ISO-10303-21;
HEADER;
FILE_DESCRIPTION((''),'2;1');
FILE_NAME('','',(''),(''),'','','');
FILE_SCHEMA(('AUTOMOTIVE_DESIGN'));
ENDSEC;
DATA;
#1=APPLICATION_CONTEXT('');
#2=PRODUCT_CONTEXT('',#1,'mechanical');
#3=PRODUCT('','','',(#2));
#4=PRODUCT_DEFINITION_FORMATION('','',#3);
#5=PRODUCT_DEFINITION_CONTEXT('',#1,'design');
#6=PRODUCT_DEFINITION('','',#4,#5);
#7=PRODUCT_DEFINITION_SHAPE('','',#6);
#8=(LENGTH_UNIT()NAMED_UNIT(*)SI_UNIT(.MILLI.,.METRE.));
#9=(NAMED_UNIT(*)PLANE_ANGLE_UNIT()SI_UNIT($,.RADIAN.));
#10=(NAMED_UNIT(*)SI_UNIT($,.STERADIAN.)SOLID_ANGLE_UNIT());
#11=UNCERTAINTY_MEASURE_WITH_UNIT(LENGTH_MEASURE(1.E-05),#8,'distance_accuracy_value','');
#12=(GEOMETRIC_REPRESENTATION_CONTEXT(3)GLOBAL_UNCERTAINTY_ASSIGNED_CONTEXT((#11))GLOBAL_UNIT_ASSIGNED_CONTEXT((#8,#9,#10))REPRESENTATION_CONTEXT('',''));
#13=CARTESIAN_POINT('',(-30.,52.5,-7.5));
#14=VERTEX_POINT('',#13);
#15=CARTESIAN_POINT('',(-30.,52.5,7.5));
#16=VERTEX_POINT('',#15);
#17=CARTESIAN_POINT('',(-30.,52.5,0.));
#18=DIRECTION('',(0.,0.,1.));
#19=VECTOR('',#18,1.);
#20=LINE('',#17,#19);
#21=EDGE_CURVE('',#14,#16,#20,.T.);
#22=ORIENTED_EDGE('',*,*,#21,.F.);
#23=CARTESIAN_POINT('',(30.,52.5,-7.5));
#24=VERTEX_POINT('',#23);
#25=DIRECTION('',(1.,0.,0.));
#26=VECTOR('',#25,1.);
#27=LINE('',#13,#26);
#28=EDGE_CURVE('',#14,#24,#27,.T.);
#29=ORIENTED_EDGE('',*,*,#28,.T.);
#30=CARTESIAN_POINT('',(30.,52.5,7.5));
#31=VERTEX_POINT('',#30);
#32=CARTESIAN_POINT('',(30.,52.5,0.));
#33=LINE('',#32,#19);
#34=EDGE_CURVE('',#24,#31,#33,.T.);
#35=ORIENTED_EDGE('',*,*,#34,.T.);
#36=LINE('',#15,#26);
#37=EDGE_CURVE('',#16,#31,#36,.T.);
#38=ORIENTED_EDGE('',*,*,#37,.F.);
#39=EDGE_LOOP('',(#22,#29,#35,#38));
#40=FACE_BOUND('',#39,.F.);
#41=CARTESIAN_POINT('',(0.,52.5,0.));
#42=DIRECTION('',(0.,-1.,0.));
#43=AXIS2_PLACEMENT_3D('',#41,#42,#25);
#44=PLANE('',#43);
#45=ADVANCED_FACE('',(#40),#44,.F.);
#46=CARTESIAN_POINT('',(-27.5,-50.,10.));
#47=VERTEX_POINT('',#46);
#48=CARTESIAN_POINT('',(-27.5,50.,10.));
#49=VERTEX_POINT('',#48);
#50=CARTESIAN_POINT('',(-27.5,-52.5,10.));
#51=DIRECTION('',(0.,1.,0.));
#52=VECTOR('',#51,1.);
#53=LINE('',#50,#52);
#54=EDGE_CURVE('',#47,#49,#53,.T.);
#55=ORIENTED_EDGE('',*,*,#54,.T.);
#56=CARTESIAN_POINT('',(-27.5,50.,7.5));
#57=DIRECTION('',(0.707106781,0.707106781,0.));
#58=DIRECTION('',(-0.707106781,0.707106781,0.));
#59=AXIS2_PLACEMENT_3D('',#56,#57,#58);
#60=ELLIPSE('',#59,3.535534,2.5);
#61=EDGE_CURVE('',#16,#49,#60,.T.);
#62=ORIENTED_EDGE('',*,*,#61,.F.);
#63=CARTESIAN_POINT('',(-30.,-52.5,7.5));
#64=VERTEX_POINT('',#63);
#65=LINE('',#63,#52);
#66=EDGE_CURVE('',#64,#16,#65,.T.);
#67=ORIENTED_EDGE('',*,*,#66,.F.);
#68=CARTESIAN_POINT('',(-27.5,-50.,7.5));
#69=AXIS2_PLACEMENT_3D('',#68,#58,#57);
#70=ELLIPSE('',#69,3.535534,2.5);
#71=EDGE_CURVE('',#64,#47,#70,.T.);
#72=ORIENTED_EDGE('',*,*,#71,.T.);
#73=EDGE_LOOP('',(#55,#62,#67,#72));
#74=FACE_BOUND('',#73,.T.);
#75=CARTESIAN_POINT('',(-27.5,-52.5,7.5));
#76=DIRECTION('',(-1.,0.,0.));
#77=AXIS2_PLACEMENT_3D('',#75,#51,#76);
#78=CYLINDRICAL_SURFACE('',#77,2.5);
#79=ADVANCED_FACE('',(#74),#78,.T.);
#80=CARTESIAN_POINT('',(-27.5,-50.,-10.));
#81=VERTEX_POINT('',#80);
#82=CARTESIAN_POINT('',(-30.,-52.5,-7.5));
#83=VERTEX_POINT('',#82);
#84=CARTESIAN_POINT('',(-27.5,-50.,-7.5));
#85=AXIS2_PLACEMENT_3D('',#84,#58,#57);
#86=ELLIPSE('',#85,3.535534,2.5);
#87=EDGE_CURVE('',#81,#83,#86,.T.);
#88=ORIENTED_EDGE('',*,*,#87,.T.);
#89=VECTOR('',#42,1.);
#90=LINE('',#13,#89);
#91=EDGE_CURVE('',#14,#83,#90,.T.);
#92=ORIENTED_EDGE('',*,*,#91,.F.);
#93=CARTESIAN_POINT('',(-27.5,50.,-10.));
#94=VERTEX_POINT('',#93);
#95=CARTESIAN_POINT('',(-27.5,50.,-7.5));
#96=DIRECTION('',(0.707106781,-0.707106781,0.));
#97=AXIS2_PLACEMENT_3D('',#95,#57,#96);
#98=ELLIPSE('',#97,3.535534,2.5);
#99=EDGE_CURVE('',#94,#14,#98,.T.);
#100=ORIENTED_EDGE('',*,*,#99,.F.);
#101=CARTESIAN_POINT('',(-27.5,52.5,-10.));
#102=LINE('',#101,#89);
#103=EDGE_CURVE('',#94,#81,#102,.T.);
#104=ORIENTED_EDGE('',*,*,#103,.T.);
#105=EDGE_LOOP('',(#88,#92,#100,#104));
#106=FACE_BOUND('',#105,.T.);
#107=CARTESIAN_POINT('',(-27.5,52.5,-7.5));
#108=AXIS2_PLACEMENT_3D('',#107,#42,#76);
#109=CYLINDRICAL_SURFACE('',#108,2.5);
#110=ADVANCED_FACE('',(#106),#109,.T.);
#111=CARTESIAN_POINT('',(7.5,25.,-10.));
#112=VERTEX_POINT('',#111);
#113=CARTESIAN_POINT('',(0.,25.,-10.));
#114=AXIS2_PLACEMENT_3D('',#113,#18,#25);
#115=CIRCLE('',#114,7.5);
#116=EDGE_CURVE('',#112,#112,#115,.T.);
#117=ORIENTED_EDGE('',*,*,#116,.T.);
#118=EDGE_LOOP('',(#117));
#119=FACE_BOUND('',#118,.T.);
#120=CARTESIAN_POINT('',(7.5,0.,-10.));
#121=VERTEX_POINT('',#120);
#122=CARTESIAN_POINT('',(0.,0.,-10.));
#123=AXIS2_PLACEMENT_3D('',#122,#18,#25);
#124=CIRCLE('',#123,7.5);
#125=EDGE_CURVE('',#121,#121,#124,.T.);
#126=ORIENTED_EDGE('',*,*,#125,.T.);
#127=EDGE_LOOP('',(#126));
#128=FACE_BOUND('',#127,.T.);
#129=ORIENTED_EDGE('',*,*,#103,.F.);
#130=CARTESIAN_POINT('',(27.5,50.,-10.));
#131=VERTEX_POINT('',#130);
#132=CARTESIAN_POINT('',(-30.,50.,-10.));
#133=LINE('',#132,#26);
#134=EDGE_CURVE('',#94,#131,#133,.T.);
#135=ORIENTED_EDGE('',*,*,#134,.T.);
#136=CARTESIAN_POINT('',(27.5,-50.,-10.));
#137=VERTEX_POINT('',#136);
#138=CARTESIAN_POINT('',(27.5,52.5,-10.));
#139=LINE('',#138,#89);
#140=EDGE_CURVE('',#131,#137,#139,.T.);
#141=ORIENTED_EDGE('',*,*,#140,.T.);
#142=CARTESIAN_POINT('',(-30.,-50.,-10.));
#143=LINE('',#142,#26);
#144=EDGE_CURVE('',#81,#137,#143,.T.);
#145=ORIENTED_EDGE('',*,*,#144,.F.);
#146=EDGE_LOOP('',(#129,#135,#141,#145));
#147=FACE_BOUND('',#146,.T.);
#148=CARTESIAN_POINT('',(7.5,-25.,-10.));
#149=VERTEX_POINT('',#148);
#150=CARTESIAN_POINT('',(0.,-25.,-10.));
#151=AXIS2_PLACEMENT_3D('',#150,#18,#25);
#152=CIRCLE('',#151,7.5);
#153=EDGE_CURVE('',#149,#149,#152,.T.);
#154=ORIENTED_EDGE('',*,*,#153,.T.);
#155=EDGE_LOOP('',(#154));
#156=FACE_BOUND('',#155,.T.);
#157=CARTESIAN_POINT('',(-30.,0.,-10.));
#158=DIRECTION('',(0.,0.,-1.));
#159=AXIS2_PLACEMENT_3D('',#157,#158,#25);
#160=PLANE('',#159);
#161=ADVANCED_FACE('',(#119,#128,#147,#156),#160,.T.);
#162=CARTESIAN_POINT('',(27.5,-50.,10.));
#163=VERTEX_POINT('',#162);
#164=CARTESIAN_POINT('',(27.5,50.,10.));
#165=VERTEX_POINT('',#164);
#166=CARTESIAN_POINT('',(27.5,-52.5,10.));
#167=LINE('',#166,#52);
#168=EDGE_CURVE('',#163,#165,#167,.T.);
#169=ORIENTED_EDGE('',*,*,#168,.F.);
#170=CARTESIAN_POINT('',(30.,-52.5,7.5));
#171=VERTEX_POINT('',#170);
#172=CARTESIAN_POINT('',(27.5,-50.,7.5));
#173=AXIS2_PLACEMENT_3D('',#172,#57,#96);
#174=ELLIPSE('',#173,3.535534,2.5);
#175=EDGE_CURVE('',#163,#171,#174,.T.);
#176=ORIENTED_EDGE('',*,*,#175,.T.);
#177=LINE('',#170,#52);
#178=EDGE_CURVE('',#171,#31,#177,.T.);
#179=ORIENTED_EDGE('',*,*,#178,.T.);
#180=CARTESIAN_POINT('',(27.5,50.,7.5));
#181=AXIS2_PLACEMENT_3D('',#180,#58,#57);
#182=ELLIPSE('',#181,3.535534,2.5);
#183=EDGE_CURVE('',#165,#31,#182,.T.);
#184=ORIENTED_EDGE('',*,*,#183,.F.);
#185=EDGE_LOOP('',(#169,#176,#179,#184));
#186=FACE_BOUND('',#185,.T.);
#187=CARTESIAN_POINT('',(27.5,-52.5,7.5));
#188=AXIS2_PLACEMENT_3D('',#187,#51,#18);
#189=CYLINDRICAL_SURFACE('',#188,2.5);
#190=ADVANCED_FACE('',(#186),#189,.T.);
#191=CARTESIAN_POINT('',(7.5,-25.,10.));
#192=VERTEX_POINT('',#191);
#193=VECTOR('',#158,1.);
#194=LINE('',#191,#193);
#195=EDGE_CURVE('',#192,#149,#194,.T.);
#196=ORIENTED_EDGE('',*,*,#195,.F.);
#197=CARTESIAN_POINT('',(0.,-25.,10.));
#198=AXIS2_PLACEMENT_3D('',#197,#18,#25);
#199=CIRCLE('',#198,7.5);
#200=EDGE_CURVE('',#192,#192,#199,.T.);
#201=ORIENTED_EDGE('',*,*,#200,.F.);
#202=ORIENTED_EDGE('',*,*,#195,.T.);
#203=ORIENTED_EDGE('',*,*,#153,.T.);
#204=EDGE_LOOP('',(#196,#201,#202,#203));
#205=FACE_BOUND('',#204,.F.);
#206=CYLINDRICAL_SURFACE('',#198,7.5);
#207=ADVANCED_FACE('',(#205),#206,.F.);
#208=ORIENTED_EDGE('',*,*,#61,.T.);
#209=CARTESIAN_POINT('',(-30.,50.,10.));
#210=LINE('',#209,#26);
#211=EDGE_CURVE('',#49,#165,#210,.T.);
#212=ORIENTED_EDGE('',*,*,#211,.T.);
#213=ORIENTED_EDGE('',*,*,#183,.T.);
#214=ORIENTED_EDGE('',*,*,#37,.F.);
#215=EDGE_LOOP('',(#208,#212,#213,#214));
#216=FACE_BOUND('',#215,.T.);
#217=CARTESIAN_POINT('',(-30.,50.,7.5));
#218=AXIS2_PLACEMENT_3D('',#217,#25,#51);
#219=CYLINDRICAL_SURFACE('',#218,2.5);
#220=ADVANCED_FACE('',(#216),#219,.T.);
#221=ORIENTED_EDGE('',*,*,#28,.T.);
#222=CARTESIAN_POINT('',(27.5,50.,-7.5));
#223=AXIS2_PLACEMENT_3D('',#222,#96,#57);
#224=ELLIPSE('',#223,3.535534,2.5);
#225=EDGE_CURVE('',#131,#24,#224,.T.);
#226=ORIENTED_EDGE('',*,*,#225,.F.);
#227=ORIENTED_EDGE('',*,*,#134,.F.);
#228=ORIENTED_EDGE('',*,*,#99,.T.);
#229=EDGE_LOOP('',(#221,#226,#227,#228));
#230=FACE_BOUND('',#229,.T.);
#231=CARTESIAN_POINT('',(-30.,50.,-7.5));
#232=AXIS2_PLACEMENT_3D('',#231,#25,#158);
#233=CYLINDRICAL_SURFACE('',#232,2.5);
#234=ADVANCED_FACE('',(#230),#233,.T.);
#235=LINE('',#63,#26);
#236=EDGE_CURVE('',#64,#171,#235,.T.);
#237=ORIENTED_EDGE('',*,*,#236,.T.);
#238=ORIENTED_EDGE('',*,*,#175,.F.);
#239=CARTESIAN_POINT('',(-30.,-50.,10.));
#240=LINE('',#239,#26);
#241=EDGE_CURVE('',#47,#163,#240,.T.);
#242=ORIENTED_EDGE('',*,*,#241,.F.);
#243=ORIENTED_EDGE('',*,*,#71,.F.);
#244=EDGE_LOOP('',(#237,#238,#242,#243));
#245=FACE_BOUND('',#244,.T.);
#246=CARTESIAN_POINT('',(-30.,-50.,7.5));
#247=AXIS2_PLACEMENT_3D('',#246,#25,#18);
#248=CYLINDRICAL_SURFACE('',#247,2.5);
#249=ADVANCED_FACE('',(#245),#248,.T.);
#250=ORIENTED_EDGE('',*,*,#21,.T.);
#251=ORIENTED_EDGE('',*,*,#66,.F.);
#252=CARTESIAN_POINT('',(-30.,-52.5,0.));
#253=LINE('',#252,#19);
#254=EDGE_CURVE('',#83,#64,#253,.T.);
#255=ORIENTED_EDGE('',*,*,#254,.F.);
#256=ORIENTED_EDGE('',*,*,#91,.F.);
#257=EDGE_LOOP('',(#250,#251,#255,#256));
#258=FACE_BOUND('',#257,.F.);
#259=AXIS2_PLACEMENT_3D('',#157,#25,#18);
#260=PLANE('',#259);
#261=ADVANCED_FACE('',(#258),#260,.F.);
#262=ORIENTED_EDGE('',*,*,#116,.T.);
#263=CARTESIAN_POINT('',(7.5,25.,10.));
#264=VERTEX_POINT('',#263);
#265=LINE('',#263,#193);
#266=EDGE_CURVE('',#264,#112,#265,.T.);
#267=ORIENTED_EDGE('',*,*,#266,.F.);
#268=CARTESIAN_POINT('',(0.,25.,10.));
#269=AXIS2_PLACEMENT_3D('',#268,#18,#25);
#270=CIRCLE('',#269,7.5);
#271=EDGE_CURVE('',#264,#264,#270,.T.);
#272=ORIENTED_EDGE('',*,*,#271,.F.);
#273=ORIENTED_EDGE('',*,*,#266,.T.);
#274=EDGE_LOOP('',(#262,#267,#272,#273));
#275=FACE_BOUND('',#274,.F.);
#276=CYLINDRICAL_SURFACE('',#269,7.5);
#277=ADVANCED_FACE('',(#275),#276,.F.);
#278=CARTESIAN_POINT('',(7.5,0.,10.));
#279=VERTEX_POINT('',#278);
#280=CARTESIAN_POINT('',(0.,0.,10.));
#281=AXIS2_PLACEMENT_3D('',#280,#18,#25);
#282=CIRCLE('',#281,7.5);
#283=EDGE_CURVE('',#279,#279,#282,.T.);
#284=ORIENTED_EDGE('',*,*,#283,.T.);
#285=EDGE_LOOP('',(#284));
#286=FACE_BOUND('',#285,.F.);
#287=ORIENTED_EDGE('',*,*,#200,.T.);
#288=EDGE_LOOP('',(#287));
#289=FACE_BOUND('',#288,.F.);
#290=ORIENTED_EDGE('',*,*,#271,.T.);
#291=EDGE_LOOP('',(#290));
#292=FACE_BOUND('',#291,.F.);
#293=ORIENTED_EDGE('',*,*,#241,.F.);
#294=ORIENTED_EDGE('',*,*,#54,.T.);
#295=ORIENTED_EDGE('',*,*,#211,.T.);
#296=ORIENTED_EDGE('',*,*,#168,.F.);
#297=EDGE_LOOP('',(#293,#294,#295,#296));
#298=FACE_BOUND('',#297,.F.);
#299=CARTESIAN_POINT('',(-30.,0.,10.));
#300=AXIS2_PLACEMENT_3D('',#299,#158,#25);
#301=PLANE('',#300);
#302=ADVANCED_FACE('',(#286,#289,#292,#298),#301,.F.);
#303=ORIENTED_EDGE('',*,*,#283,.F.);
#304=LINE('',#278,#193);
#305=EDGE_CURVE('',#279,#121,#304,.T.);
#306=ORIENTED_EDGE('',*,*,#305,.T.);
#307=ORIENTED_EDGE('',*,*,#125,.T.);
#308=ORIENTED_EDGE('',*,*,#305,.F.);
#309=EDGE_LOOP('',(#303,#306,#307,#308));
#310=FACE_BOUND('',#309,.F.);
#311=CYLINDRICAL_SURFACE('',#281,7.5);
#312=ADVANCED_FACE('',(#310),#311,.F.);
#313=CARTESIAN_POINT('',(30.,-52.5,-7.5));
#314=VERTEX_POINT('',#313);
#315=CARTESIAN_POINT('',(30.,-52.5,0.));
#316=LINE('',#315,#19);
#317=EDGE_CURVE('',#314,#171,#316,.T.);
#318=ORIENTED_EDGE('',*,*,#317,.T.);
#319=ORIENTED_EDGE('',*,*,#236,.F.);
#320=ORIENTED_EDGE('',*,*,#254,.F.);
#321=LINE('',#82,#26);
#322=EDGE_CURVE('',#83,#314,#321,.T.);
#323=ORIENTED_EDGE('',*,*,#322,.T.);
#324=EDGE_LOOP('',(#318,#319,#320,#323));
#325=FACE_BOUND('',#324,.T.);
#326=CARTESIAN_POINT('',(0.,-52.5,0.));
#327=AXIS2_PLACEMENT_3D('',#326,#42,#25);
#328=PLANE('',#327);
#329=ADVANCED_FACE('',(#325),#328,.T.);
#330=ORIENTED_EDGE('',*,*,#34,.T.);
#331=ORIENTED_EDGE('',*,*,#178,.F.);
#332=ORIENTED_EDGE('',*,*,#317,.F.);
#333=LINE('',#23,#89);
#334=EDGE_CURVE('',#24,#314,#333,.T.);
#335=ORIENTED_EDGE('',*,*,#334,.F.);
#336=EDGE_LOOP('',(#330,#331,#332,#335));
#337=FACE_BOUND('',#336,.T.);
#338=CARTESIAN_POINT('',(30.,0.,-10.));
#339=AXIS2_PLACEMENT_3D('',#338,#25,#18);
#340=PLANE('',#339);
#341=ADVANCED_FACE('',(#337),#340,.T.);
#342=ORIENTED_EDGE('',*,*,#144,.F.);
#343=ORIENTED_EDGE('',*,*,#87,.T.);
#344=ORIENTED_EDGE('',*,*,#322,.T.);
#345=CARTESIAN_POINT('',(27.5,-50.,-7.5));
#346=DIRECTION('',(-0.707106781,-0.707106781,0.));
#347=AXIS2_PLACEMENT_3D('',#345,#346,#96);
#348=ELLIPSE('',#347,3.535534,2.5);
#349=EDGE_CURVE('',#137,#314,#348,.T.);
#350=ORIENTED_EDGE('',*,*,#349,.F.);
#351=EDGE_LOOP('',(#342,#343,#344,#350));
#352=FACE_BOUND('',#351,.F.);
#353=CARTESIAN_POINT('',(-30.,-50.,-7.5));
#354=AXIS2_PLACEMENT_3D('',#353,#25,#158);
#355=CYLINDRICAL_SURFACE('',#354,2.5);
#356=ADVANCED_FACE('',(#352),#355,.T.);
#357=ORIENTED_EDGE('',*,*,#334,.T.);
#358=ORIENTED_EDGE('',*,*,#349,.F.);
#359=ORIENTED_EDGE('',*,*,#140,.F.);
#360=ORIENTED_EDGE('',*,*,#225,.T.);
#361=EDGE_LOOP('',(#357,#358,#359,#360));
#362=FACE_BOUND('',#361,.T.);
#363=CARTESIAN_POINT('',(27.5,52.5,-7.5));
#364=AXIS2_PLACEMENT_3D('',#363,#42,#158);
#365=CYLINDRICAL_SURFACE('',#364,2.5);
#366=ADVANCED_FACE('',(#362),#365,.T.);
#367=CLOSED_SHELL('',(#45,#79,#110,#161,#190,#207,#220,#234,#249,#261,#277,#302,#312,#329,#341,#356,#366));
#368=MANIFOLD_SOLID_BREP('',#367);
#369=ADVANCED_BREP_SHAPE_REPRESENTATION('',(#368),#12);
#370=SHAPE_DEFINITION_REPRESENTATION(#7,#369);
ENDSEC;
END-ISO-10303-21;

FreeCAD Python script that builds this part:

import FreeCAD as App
import Part
import Sketcher

V = App.Vector


def edges_at(feature, points):
    """Names of the edges that pass closest to the given points."""
    edges = feature.Shape.Edges
    near = lambda p: min(range(len(edges)), key=lambda i: edges[i].distToShape(Part.Vertex(*p))[0])
    return sorted({f"Edge{near(p) + 1}" for p in points})


def add_polygon(sketch, points):
    """Adds a closed chain of lines whose ends are joined by coincident constraints."""
    first, n = sketch.GeometryCount, len(points)
    for a, b in zip(points, points[1:] + points[:1]):
        sketch.addGeometry(Part.LineSegment(App.Vector(*a, 0), App.Vector(*b, 0)), False)
    for i in range(n):
        sketch.addConstraint(Sketcher.Constraint("Coincident", first + i, 2, first + (i + 1) % n, 1))

doc = App.newDocument("Part")
body = doc.addObject("PartDesign::Body", "Body")

sketch1 = body.newObject("Sketcher::SketchObject", "Sketch")
sketch1.AttachmentSupport = (doc.getObject("XZ_Plane"), [""])
sketch1.MapMode = "FlatFace"
add_polygon(sketch1, [(-30, 10), (-30, -10), (30, -10), (30, 10)])
sketch1.addConstraint([
    Sketcher.Constraint("Vertical", 0),
    Sketcher.Constraint("Horizontal", 1),
    Sketcher.Constraint("Vertical", 2),
    Sketcher.Constraint("Horizontal", 3),
    Sketcher.Constraint("Symmetric", 0, 2, 2, 2, -1, 1),
    Sketcher.Constraint("DistanceX", 1, 1, 1, 2, 60.0),
    Sketcher.Constraint("DistanceY", 0, 2, 0, 1, 20.0),
])
pad1 = body.newObject("PartDesign::Pad", "Pad")
pad1.Profile = sketch1
pad1.Length = 105
pad1.Midplane = True

sketch2 = body.newObject("Sketcher::SketchObject", "Sketch001")
sketch2.AttachmentSupport = (doc.getObject("XY_Plane"), [""])
sketch2.MapMode = "FlatFace"
sketch2.AttachmentOffset = App.Placement(V(0, 0, 10), App.Rotation())
sketch2.addGeometry([
    Part.Circle(V(0, 25, 0), V(0, 0, 1), 8),
    Part.Circle(V(0, 0, 0), V(0, 0, 1), 8),
    Part.Circle(V(0, -25, 0), V(0, 0, 1), 8),
], False)
sketch2.addConstraint([
    Sketcher.Constraint("Coincident", 1, 3, -1, 1),
    Sketcher.Constraint("Equal", 0, 1),
    Sketcher.Constraint("Equal", 1, 2),
    Sketcher.Constraint("Symmetric", 0, 3, 2, 3, -1, 1),
    Sketcher.Constraint("PointOnObject", 0, 3, -2),
    Sketcher.Constraint("Diameter", 0, 15.0),
    Sketcher.Constraint("DistanceY", -1, 1, 0, 3, 25.0),
])
pocket1 = body.newObject("PartDesign::Pocket", "Pocket")
pocket1.Profile = sketch2
pocket1.Type = "ThroughAll"
doc.recompute()

fillet = body.newObject("PartDesign::Fillet", "Fillet")
fillet.Base = (pocket1, edges_at(pocket1, [
    (-30, 0, 10),
    (0, -52.5, 10),
    (30, 0, 10),
    (0, 52.5, 10),
    (0, 52.5, -10),
    (30, 0, -10),
    (0, -52.5, -10),
    (-30, 0, -10),
]))
fillet.Radius = 2.5

doc.recompute()
